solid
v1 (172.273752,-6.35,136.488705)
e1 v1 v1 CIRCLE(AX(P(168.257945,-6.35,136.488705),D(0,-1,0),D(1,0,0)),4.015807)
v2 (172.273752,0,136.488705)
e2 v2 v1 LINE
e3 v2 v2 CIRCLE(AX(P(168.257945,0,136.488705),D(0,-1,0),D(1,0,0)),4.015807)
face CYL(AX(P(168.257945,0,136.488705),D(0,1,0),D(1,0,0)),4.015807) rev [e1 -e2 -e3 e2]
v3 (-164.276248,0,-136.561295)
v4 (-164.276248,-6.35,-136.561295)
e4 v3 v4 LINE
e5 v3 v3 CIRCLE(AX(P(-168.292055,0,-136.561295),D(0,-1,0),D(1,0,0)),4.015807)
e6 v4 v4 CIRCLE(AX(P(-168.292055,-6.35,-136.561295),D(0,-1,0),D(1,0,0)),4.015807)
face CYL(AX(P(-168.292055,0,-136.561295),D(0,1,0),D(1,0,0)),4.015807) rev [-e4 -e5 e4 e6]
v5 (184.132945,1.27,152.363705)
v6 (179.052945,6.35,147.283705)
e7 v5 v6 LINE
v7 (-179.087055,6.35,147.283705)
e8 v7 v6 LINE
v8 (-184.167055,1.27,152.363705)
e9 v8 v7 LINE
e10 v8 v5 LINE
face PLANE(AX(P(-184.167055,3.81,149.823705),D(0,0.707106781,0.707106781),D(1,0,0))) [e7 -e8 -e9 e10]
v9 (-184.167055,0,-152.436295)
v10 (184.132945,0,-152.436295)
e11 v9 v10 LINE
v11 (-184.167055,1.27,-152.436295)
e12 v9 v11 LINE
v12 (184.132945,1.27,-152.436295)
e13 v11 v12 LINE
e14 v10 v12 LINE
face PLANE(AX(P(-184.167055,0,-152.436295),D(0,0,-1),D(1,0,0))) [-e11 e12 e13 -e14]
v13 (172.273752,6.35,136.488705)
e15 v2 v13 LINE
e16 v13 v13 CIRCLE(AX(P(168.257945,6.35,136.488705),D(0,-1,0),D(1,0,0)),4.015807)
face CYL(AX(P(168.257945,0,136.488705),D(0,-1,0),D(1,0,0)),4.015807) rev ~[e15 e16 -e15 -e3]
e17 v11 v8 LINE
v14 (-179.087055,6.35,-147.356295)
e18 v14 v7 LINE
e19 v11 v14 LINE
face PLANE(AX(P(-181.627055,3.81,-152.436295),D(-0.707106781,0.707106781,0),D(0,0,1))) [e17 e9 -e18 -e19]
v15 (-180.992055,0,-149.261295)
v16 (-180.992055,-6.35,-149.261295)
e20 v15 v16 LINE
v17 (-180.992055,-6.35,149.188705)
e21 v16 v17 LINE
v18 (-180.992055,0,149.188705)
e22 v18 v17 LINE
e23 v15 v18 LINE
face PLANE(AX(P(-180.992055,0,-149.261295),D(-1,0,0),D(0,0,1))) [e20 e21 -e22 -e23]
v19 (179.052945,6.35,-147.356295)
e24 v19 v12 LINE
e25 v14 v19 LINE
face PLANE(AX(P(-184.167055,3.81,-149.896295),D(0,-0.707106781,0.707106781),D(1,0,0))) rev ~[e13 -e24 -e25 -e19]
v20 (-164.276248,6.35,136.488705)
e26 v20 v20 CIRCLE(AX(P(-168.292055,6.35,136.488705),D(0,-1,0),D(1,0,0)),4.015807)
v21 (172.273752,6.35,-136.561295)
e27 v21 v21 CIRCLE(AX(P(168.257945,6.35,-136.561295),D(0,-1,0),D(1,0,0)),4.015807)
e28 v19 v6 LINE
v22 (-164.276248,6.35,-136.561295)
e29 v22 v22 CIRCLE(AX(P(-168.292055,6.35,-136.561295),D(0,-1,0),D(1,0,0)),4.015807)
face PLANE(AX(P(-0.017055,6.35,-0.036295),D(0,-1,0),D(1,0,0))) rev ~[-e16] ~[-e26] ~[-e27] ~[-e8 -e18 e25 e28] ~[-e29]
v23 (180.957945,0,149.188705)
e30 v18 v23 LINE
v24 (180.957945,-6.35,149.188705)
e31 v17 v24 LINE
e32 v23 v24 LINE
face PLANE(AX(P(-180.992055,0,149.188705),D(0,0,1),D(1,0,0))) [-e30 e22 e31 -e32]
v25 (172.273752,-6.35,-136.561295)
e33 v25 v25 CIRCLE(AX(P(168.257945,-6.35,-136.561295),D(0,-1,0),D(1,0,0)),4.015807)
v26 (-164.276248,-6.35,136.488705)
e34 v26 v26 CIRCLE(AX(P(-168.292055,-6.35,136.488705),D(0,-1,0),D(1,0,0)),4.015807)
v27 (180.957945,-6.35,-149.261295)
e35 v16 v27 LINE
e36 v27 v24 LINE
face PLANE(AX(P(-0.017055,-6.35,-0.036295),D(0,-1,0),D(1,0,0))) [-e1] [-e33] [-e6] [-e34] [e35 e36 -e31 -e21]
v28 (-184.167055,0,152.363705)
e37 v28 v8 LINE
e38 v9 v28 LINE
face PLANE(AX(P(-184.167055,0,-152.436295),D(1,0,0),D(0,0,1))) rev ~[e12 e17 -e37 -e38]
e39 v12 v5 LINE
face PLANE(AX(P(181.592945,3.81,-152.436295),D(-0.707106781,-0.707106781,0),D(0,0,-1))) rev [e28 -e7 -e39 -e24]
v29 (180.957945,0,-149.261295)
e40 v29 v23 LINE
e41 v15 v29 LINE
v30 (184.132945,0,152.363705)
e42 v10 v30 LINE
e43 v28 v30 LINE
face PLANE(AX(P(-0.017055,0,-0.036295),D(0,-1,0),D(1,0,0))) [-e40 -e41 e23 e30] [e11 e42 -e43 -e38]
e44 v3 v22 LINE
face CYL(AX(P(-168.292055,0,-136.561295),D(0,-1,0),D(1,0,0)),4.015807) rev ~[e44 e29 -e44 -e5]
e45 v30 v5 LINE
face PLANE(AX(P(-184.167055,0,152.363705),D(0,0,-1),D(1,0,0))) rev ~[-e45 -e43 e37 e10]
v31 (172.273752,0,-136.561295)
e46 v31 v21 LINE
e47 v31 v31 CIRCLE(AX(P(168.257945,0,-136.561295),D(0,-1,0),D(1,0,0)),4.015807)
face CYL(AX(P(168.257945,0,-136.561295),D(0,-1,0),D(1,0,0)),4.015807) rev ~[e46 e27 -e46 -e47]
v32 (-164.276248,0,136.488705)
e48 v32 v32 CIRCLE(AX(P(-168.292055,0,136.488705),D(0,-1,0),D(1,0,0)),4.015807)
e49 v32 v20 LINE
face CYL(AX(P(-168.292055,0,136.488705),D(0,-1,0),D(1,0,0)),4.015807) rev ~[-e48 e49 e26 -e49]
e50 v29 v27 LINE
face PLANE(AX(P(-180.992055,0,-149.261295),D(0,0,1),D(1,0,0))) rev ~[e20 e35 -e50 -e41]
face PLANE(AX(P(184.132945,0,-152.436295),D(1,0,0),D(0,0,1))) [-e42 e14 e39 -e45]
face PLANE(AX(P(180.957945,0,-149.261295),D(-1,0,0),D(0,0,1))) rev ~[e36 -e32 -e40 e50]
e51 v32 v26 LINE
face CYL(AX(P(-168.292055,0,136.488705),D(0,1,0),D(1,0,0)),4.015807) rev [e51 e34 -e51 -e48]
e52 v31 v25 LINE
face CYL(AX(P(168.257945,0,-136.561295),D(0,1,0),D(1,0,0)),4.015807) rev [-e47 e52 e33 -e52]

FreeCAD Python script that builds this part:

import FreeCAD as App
import Part
import Sketcher
Q = App.Units.Quantity


def edges_at(feature, points):
    """Names of the edges that pass closest to the given points."""
    edges = feature.Shape.Edges
    near = lambda p: min(range(len(edges)), key=lambda i: edges[i].distToShape(Part.Vertex(*p))[0])
    return sorted({f"Edge{near(p) + 1}" for p in points})

doc = App.newDocument("Part")
body = doc.addObject("PartDesign::Body", "Body")

# Sketch on XZ plane
sketch1 = body.newObject("Sketcher::SketchObject", "Sketch")
sketch1.AttachmentSupport = (doc.getObject("XZ_Plane"), [""])
sketch1.MapMode = "FlatFace"
sketch1.addGeometry(Part.LineSegment(App.Vector(-181, 149.2, 0), App.Vector(-181, -149.3, 0)), False)
sketch1.addGeometry(Part.LineSegment(App.Vector(-181, -149.3, 0), App.Vector(181, -149.3, 0)), False)
sketch1.addGeometry(Part.LineSegment(App.Vector(181, -149.3, 0), App.Vector(181, 149.2, 0)), False)
sketch1.addGeometry(Part.LineSegment(App.Vector(181, 149.2, 0), App.Vector(-181, 149.2, 0)), False)
sketch1.addGeometry(Part.Circle(App.Vector(-168.3, -136.6, 0), App.Vector(0, 0, 1), 4), False)
sketch1.addGeometry(Part.Circle(App.Vector(168.3, -136.6, 0), App.Vector(0, 0, 1), 4), False)
sketch1.addGeometry(Part.Circle(App.Vector(-168.3, 136.5, 0), App.Vector(0, 0, 1), 4), False)
sketch1.addGeometry(Part.Circle(App.Vector(168.3, 136.5, 0), App.Vector(0, 0, 1), 4), False)
sketch1.addConstraint(Sketcher.Constraint("Coincident", 0, 2, 1, 1))
sketch1.addConstraint(Sketcher.Constraint("Coincident", 1, 2, 2, 1))
sketch1.addConstraint(Sketcher.Constraint("Coincident", 2, 2, 3, 1))
sketch1.addConstraint(Sketcher.Constraint("Coincident", 3, 2, 0, 1))
sketch1.addConstraint(Sketcher.Constraint("Vertical", 0))
sketch1.addConstraint(Sketcher.Constraint("Horizontal", 1))
sketch1.addConstraint(Sketcher.Constraint("Vertical", 2))
sketch1.addConstraint(Sketcher.Constraint("Horizontal", 3))
sketch1.addConstraint(Sketcher.Constraint("Equal", 4, 5))
sketch1.addConstraint(Sketcher.Constraint("Equal", 5, 6))
sketch1.addConstraint(Sketcher.Constraint("Equal", 6, 7))
sketch1.addConstraint(Sketcher.Constraint("Horizontal", 4, 3, 5, 3))
sketch1.addConstraint(Sketcher.Constraint("Horizontal", 6, 3, 7, 3))
sketch1.addConstraint(Sketcher.Constraint("Vertical", 4, 3, 6, 3))
sketch1.addConstraint(Sketcher.Constraint("Vertical", 5, 3, 7, 3))
sketch1.addConstraint(Sketcher.Constraint("DistanceX", 1, 1, 1, 2, Q("14.25 in")))
sketch1.addConstraint(Sketcher.Constraint("DistanceY", 0, 2, 0, 1, Q("11.75 in")))
sketch1.addConstraint(Sketcher.Constraint("DistanceX", 0, 2, 4, 3, Q("0.5 in")))
sketch1.addConstraint(Sketcher.Constraint("DistanceY", 0, 2, 4, 3, Q("0.5 in")))
sketch1.addConstraint(Sketcher.Constraint("DistanceX", 5, 3, 1, 2, Q("0.5 in")))
sketch1.addConstraint(Sketcher.Constraint("DistanceY", 7, 3, 2, 2, Q("0.5 in")))
sketch1.addConstraint(Sketcher.Constraint("Diameter", 4, 8.031614))
sketch1.addConstraint(Sketcher.Constraint("DistanceX", 4, 3, -1, 1, 168.292055))
sketch1.addConstraint(Sketcher.Constraint("DistanceY", 4, 3, -1, 1, 136.561295))
pad1 = body.newObject("PartDesign::Pad", "Pad")
pad1.Profile = sketch1
pad1.Length = Q("0.25 in")

# Sketch on XZ plane
sketch2 = body.newObject("Sketcher::SketchObject", "Sketch001")
sketch2.AttachmentSupport = (doc.getObject("XZ_Plane"), [""])
sketch2.MapMode = "FlatFace"
sketch2.addGeometry(Part.LineSegment(App.Vector(-184.2, 152.4, 0), App.Vector(-184.2, -152.4, 0)), False)
sketch2.addGeometry(Part.LineSegment(App.Vector(-184.2, -152.4, 0), App.Vector(184.1, -152.4, 0)), False)
sketch2.addGeometry(Part.LineSegment(App.Vector(184.1, -152.4, 0), App.Vector(184.1, 152.4, 0)), False)
sketch2.addGeometry(Part.LineSegment(App.Vector(184.1, 152.4, 0), App.Vector(-184.2, 152.4, 0)), False)
sketch2.addGeometry(Part.Circle(App.Vector(-168.3, -136.6, 0), App.Vector(0, 0, 1), 4), False)
sketch2.addGeometry(Part.Circle(App.Vector(168.3, -136.6, 0), App.Vector(0, 0, 1), 4), False)
sketch2.addGeometry(Part.Circle(App.Vector(-168.3, 136.5, 0), App.Vector(0, 0, 1), 4), False)
sketch2.addGeometry(Part.Circle(App.Vector(168.3, 136.5, 0), App.Vector(0, 0, 1), 4), False)
sketch2.addConstraint(Sketcher.Constraint("Coincident", 0, 2, 1, 1))
sketch2.addConstraint(Sketcher.Constraint("Coincident", 1, 2, 2, 1))
sketch2.addConstraint(Sketcher.Constraint("Coincident", 2, 2, 3, 1))
sketch2.addConstraint(Sketcher.Constraint("Coincident", 3, 2, 0, 1))
sketch2.addConstraint(Sketcher.Constraint("Vertical", 0))
sketch2.addConstraint(Sketcher.Constraint("Horizontal", 1))
sketch2.addConstraint(Sketcher.Constraint("Vertical", 2))
sketch2.addConstraint(Sketcher.Constraint("Horizontal", 3))
sketch2.addConstraint(Sketcher.Constraint("Equal", 4, 5))
sketch2.addConstraint(Sketcher.Constraint("Equal", 5, 6))
sketch2.addConstraint(Sketcher.Constraint("Equal", 6, 7))
sketch2.addConstraint(Sketcher.Constraint("Horizontal", 4, 3, 5, 3))
sketch2.addConstraint(Sketcher.Constraint("Horizontal", 6, 3, 7, 3))
sketch2.addConstraint(Sketcher.Constraint("Vertical", 4, 3, 6, 3))
sketch2.addConstraint(Sketcher.Constraint("Vertical", 5, 3, 7, 3))
sketch2.addConstraint(Sketcher.Constraint("DistanceY", 0, 2, 0, 1, Q("12 in")))
sketch2.addConstraint(Sketcher.Constraint("DistanceX", 1, 1, 1, 2, Q("14.5 in")))
sketch2.addConstraint(Sketcher.Constraint("DistanceX", 4, 3, 5, 3, Q("13.25 in")))
sketch2.addConstraint(Sketcher.Constraint("DistanceY", 4, 3, 6, 3, Q("10.75 in")))
sketch2.addConstraint(Sketcher.Constraint("DistanceX", 0, 2, 4, 3, Q("0.625 in")))
sketch2.addConstraint(Sketcher.Constraint("DistanceY", 0, 2, 4, 3, Q("0.625 in")))
sketch2.addConstraint(Sketcher.Constraint("Diameter", 4, 8.031614))
sketch2.addConstraint(Sketcher.Constraint("DistanceX", 4, 3, -1, 1, 168.292055))
sketch2.addConstraint(Sketcher.Constraint("DistanceY", 4, 3, -1, 1, 136.561295))
pad2 = body.newObject("PartDesign::Pad", "Pad001")
pad2.Profile = sketch2
pad2.Length = Q("0.25 in")
pad2.Reversed = True
doc.recompute()

chamfer = body.newObject("PartDesign::Chamfer", "Chamfer")
chamfer.Base = (pad2, edges_at(pad2, [
    (-0.017, 6.35, 152.364),
    (184.133, 6.35, -0.036),
    (-0.017, 6.35, -152.436),
    (-184.167, 6.35, -0.036),
]))
chamfer.Size = Q("0.2 in")

doc.recompute()
